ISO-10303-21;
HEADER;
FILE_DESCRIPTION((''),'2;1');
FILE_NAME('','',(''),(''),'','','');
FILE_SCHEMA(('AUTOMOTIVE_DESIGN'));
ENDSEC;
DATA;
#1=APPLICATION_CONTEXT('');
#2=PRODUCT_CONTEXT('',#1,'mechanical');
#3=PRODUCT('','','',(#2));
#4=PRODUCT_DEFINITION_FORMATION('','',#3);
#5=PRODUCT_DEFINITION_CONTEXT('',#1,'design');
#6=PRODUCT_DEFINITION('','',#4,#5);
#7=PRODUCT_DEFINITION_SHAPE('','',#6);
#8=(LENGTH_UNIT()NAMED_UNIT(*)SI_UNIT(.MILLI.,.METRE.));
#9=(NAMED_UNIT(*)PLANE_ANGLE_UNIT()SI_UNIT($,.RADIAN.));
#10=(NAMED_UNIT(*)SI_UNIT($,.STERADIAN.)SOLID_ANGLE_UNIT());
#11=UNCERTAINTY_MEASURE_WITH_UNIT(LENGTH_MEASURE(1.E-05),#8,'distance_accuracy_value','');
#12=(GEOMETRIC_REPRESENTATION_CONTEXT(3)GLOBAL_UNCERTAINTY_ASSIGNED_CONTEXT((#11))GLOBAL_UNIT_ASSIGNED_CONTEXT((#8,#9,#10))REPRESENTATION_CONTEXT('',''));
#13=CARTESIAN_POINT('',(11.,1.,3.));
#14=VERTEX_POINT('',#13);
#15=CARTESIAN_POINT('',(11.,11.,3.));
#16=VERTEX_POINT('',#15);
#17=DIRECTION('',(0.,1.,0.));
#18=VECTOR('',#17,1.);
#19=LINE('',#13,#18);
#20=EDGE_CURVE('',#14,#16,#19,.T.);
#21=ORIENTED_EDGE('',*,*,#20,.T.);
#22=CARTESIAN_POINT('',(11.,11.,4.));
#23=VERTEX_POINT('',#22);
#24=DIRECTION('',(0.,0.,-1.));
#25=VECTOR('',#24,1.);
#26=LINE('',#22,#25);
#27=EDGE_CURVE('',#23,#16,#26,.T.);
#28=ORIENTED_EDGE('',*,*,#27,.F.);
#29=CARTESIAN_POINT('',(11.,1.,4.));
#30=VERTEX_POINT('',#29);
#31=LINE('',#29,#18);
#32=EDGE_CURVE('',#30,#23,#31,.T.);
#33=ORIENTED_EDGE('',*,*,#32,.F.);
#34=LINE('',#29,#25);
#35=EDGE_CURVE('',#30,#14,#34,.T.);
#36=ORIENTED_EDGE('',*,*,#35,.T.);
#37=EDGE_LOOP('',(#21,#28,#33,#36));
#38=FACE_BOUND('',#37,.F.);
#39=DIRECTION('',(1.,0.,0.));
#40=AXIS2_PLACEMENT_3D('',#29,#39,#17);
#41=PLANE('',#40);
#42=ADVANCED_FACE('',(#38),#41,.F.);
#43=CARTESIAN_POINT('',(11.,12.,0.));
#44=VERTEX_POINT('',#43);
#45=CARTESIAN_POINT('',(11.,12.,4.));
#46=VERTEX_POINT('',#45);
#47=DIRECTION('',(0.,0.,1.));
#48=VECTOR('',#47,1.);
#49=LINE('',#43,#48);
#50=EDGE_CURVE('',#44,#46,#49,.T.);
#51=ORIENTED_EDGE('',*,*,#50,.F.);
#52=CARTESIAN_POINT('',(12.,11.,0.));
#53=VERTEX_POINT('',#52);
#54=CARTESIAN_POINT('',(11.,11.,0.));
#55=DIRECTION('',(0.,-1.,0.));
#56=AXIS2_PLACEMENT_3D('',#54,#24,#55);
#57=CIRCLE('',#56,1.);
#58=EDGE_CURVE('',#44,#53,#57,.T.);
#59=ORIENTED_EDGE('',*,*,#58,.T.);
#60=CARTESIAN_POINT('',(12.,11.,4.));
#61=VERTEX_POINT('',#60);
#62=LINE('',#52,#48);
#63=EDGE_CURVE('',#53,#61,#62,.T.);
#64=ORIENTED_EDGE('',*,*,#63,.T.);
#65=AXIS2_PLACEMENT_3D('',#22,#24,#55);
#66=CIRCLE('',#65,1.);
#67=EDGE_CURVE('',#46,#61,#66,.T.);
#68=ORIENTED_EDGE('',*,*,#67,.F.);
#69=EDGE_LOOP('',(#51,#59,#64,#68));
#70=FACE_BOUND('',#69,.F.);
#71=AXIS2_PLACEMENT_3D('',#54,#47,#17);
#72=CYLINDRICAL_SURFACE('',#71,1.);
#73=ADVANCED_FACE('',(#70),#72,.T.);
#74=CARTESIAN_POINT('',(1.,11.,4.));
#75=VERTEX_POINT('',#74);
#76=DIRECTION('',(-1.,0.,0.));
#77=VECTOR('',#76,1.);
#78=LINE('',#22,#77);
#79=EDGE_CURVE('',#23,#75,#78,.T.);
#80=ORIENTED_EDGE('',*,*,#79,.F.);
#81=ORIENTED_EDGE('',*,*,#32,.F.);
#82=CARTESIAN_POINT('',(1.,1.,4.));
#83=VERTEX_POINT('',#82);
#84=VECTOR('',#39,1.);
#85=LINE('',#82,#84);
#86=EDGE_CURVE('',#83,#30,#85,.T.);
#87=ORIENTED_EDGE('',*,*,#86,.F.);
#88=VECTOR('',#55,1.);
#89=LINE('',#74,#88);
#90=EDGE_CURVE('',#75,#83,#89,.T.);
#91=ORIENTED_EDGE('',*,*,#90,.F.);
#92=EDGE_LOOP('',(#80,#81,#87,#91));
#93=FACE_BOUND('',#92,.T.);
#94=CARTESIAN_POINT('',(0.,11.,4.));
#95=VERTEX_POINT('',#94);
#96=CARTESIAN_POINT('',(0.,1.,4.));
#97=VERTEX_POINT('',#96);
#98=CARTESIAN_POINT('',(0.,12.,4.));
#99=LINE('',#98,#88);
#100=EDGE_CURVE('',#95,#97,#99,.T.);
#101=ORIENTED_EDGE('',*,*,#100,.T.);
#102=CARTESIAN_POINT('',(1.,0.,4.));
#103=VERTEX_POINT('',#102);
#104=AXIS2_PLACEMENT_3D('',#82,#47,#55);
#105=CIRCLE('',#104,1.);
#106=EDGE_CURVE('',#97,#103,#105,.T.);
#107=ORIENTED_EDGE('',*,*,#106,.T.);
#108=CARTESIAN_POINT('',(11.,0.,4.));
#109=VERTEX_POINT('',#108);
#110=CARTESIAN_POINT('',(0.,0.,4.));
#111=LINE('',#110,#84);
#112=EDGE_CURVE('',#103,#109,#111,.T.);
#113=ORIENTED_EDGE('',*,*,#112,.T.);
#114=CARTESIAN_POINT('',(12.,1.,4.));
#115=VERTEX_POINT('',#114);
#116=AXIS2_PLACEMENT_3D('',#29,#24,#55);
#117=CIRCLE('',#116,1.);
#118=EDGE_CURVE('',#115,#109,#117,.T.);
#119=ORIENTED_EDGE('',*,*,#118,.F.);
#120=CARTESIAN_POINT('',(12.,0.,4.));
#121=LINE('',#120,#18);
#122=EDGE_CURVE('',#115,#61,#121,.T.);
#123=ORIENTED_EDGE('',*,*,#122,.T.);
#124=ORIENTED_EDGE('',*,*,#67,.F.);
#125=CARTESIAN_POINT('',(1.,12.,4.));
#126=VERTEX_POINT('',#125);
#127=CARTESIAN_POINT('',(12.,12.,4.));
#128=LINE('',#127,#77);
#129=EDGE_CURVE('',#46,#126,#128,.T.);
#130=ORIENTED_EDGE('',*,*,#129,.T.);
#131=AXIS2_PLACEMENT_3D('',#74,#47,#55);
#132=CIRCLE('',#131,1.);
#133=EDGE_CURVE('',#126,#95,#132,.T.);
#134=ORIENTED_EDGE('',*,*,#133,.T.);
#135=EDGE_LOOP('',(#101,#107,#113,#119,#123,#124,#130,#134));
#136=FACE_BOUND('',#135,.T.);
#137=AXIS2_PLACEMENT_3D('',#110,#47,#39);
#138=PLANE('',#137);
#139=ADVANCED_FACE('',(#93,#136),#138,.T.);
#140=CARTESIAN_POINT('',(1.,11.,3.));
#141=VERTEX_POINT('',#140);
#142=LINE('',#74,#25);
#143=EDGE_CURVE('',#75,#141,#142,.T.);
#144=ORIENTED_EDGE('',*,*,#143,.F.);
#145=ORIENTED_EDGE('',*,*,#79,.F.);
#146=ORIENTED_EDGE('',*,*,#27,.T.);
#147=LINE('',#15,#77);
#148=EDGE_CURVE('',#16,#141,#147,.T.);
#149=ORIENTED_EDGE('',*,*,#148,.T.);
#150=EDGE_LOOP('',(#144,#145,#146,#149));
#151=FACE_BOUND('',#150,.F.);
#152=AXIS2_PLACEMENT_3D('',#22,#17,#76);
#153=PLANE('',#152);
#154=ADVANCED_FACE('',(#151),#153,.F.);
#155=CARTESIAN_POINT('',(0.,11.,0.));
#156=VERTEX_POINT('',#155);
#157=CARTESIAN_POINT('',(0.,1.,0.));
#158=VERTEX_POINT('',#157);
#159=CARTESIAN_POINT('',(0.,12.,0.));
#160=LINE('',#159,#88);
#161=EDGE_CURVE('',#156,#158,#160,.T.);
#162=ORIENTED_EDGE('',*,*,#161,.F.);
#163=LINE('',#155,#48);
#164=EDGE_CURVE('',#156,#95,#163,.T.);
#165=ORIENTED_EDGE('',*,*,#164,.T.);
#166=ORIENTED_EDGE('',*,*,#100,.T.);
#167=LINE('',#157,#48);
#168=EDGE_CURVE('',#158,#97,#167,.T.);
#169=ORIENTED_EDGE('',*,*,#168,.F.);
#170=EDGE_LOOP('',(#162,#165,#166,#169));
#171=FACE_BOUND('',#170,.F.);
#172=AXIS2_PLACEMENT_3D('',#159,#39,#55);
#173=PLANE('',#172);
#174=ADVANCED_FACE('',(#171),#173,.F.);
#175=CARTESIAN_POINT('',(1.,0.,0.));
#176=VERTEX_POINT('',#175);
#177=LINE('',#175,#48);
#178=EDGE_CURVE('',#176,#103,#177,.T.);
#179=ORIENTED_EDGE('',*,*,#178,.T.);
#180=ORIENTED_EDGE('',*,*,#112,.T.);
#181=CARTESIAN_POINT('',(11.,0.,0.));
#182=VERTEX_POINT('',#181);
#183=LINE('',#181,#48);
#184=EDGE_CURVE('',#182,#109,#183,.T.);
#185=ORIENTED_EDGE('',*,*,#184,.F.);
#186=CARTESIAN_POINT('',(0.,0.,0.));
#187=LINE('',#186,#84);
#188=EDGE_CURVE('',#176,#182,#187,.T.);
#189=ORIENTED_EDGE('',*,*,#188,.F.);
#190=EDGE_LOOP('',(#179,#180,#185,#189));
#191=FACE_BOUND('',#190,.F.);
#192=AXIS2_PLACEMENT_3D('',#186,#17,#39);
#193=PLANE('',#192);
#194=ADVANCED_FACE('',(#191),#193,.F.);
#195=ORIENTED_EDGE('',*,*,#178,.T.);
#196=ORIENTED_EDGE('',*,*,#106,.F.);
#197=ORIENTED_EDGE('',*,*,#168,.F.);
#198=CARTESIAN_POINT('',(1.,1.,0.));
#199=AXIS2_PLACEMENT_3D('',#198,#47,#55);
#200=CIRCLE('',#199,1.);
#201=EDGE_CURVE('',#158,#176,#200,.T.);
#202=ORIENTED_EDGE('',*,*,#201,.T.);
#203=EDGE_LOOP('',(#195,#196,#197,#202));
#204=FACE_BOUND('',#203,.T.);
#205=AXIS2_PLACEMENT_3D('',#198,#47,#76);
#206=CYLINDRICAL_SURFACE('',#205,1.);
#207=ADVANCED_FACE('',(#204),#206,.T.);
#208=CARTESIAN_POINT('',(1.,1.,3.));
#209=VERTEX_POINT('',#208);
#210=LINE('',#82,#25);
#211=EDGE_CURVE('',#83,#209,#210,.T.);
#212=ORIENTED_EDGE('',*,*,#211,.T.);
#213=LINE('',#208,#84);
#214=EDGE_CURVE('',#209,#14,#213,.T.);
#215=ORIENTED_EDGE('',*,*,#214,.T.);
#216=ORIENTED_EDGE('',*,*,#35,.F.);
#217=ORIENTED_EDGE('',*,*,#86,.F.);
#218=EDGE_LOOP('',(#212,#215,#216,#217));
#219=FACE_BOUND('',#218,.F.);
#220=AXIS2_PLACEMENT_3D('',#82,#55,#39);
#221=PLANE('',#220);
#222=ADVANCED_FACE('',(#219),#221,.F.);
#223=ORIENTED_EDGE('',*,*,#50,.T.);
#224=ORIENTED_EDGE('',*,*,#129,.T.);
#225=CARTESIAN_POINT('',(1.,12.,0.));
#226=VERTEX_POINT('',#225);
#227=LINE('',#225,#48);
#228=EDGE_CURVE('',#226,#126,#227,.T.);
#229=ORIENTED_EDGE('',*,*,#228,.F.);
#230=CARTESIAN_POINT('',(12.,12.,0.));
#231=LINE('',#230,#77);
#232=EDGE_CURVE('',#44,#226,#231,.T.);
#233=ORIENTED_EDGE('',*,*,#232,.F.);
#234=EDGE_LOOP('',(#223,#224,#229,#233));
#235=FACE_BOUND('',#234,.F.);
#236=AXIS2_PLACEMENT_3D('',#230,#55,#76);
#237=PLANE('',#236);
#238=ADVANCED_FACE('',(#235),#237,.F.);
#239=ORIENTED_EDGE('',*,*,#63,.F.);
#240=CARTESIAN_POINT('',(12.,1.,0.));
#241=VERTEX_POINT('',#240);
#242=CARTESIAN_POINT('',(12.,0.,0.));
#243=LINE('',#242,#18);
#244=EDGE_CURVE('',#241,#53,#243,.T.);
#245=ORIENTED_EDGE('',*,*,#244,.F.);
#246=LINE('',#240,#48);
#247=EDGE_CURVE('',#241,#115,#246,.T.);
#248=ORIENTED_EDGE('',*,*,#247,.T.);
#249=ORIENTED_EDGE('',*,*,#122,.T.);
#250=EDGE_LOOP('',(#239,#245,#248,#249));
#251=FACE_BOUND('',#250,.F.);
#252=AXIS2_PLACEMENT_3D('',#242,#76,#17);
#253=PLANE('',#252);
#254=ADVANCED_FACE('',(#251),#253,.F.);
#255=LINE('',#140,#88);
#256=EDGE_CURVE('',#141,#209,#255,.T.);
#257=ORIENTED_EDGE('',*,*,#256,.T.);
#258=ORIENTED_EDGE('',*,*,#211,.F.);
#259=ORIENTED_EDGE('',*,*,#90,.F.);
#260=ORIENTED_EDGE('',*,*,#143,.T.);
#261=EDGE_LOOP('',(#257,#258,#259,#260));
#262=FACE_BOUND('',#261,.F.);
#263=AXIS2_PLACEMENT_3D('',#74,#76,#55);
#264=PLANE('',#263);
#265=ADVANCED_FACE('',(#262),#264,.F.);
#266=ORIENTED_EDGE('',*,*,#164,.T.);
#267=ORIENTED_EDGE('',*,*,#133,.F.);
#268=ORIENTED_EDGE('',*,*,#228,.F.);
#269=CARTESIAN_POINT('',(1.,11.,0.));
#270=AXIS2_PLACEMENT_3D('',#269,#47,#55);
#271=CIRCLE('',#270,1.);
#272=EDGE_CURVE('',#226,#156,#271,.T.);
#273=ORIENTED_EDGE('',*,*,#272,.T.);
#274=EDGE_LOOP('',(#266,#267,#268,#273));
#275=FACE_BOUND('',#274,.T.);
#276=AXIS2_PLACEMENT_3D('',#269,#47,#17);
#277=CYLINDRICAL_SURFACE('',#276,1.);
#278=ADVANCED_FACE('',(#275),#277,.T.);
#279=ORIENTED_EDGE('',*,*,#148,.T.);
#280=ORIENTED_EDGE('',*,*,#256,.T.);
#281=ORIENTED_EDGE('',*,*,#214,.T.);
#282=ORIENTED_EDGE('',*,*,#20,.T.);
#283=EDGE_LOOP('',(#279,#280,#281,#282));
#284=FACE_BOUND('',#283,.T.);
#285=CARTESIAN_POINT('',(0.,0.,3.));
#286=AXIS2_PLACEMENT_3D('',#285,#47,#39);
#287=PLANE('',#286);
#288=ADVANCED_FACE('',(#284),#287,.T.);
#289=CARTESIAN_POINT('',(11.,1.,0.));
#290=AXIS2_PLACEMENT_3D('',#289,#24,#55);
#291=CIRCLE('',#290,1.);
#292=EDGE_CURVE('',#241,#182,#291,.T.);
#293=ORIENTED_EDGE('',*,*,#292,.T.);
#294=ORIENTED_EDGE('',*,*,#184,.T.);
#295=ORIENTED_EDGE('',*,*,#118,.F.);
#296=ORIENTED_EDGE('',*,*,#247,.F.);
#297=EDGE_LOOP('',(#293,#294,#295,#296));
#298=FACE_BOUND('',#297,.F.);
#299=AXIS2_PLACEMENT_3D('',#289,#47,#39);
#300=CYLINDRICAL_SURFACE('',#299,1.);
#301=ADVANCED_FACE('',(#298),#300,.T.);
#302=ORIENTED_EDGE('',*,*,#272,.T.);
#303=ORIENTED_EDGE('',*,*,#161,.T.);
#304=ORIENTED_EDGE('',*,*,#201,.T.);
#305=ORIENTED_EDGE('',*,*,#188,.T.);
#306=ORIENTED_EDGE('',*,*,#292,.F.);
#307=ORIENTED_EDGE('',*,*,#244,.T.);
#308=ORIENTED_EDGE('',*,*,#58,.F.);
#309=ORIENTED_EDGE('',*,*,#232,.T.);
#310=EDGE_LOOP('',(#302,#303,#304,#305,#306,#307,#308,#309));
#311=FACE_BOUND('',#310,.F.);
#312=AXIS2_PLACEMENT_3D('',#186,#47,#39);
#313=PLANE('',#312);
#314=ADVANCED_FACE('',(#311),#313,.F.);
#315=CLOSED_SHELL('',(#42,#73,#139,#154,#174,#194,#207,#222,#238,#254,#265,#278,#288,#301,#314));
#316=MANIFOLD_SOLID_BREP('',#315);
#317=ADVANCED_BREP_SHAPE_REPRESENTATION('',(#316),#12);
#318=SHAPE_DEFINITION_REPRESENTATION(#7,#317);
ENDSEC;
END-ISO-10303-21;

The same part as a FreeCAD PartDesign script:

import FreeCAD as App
import Part
import Sketcher

V = App.Vector
Q = App.Units.Quantity


def edges_at(feature, points):
    """Names of the edges that pass closest to the given points."""
    edges = feature.Shape.Edges
    near = lambda p: min(range(len(edges)), key=lambda i: edges[i].distToShape(Part.Vertex(*p))[0])
    return sorted({f"Edge{near(p) + 1}" for p in points})

doc = App.newDocument("Part")
body = doc.addObject("PartDesign::Body", "Body")

sketch1 = body.newObject("Sketcher::SketchObject", "Sketch")
sketch1.AttachmentSupport = (doc.getObject("XY_Plane"), [""])
sketch1.MapMode = "FlatFace"
sketch1.addGeometry([
    Part.LineSegment(V(0, 12, 0), V(0, 0, 0)),
    Part.LineSegment(V(0, 0, 0), V(12, 0, 0)),
    Part.LineSegment(V(12, 0, 0), V(12, 12, 0)),
    Part.LineSegment(V(12, 12, 0), V(0, 12, 0)),
], False)
sketch1.addConstraint([
    Sketcher.Constraint("Coincident", 0, 2, 1, 1),
    Sketcher.Constraint("Coincident", 1, 2, 2, 1),
    Sketcher.Constraint("Coincident", 2, 2, 3, 1),
    Sketcher.Constraint("Coincident", 3, 2, 0, 1),
    Sketcher.Constraint("Vertical", 0),
    Sketcher.Constraint("Horizontal", 1),
    Sketcher.Constraint("Vertical", 2),
    Sketcher.Constraint("Horizontal", 3),
    Sketcher.Constraint("Coincident", 0, 2, -1, 1),
    Sketcher.Constraint("Equal", 3, 0),
    Sketcher.Constraint("DistanceX", 1, 1, 1, 2, Q("12 mm")),
])
pad1 = body.newObject("PartDesign::Pad", "Pad")
pad1.Profile = sketch1
pad1.Length = 4
doc.recompute()

fillet = body.newObject("PartDesign::Fillet", "Fillet")
fillet.Base = (pad1, edges_at(pad1, [(12, 12, 2)]))
fillet.Radius = 1
doc.recompute()

fillet2 = body.newObject("PartDesign::Fillet", "Fillet001")
fillet2.Base = (fillet, edges_at(fillet, [(0, 12, 2), (12, 0, 2), (0, 0, 2)]))
fillet2.Radius = 1

sketch2 = body.newObject("Sketcher::SketchObject", "Sketch001")
sketch2.AttachmentSupport = (doc.getObject("XY_Plane"), [""])
sketch2.MapMode = "FlatFace"
sketch2.AttachmentOffset = App.Placement(V(0, 0, 4), App.Rotation())
sketch2.addGeometry([
    Part.LineSegment(V(1, 11, 0), V(1, 1, 0)),
    Part.LineSegment(V(1, 1, 0), V(11, 1, 0)),
    Part.LineSegment(V(11, 1, 0), V(11, 11, 0)),
    Part.LineSegment(V(11, 11, 0), V(1, 11, 0)),
], False)
sketch2.addConstraint([
    Sketcher.Constraint("Coincident", 0, 2, 1, 1),
    Sketcher.Constraint("Coincident", 1, 2, 2, 1),
    Sketcher.Constraint("Coincident", 2, 2, 3, 1),
    Sketcher.Constraint("Coincident", 3, 2, 0, 1),
    Sketcher.Constraint("Vertical", 0),
    Sketcher.Constraint("Horizontal", 1),
    Sketcher.Constraint("Vertical", 2),
    Sketcher.Constraint("Horizontal", 3),
    Sketcher.Constraint("Equal", 3, 0),
    Sketcher.Constraint("DistanceX", 1, 1, 1, 2, Q("10 mm")),
    Sketcher.Constraint("DistanceX", -1, 1, 0, 2, Q("1 mm")),
    Sketcher.Constraint("DistanceY", -1, 1, 0, 2, Q("1 mm")),
])
pocket1 = body.newObject("PartDesign::Pocket", "Pocket")
pocket1.Profile = sketch2
pocket1.Length = 1

doc.recompute()
